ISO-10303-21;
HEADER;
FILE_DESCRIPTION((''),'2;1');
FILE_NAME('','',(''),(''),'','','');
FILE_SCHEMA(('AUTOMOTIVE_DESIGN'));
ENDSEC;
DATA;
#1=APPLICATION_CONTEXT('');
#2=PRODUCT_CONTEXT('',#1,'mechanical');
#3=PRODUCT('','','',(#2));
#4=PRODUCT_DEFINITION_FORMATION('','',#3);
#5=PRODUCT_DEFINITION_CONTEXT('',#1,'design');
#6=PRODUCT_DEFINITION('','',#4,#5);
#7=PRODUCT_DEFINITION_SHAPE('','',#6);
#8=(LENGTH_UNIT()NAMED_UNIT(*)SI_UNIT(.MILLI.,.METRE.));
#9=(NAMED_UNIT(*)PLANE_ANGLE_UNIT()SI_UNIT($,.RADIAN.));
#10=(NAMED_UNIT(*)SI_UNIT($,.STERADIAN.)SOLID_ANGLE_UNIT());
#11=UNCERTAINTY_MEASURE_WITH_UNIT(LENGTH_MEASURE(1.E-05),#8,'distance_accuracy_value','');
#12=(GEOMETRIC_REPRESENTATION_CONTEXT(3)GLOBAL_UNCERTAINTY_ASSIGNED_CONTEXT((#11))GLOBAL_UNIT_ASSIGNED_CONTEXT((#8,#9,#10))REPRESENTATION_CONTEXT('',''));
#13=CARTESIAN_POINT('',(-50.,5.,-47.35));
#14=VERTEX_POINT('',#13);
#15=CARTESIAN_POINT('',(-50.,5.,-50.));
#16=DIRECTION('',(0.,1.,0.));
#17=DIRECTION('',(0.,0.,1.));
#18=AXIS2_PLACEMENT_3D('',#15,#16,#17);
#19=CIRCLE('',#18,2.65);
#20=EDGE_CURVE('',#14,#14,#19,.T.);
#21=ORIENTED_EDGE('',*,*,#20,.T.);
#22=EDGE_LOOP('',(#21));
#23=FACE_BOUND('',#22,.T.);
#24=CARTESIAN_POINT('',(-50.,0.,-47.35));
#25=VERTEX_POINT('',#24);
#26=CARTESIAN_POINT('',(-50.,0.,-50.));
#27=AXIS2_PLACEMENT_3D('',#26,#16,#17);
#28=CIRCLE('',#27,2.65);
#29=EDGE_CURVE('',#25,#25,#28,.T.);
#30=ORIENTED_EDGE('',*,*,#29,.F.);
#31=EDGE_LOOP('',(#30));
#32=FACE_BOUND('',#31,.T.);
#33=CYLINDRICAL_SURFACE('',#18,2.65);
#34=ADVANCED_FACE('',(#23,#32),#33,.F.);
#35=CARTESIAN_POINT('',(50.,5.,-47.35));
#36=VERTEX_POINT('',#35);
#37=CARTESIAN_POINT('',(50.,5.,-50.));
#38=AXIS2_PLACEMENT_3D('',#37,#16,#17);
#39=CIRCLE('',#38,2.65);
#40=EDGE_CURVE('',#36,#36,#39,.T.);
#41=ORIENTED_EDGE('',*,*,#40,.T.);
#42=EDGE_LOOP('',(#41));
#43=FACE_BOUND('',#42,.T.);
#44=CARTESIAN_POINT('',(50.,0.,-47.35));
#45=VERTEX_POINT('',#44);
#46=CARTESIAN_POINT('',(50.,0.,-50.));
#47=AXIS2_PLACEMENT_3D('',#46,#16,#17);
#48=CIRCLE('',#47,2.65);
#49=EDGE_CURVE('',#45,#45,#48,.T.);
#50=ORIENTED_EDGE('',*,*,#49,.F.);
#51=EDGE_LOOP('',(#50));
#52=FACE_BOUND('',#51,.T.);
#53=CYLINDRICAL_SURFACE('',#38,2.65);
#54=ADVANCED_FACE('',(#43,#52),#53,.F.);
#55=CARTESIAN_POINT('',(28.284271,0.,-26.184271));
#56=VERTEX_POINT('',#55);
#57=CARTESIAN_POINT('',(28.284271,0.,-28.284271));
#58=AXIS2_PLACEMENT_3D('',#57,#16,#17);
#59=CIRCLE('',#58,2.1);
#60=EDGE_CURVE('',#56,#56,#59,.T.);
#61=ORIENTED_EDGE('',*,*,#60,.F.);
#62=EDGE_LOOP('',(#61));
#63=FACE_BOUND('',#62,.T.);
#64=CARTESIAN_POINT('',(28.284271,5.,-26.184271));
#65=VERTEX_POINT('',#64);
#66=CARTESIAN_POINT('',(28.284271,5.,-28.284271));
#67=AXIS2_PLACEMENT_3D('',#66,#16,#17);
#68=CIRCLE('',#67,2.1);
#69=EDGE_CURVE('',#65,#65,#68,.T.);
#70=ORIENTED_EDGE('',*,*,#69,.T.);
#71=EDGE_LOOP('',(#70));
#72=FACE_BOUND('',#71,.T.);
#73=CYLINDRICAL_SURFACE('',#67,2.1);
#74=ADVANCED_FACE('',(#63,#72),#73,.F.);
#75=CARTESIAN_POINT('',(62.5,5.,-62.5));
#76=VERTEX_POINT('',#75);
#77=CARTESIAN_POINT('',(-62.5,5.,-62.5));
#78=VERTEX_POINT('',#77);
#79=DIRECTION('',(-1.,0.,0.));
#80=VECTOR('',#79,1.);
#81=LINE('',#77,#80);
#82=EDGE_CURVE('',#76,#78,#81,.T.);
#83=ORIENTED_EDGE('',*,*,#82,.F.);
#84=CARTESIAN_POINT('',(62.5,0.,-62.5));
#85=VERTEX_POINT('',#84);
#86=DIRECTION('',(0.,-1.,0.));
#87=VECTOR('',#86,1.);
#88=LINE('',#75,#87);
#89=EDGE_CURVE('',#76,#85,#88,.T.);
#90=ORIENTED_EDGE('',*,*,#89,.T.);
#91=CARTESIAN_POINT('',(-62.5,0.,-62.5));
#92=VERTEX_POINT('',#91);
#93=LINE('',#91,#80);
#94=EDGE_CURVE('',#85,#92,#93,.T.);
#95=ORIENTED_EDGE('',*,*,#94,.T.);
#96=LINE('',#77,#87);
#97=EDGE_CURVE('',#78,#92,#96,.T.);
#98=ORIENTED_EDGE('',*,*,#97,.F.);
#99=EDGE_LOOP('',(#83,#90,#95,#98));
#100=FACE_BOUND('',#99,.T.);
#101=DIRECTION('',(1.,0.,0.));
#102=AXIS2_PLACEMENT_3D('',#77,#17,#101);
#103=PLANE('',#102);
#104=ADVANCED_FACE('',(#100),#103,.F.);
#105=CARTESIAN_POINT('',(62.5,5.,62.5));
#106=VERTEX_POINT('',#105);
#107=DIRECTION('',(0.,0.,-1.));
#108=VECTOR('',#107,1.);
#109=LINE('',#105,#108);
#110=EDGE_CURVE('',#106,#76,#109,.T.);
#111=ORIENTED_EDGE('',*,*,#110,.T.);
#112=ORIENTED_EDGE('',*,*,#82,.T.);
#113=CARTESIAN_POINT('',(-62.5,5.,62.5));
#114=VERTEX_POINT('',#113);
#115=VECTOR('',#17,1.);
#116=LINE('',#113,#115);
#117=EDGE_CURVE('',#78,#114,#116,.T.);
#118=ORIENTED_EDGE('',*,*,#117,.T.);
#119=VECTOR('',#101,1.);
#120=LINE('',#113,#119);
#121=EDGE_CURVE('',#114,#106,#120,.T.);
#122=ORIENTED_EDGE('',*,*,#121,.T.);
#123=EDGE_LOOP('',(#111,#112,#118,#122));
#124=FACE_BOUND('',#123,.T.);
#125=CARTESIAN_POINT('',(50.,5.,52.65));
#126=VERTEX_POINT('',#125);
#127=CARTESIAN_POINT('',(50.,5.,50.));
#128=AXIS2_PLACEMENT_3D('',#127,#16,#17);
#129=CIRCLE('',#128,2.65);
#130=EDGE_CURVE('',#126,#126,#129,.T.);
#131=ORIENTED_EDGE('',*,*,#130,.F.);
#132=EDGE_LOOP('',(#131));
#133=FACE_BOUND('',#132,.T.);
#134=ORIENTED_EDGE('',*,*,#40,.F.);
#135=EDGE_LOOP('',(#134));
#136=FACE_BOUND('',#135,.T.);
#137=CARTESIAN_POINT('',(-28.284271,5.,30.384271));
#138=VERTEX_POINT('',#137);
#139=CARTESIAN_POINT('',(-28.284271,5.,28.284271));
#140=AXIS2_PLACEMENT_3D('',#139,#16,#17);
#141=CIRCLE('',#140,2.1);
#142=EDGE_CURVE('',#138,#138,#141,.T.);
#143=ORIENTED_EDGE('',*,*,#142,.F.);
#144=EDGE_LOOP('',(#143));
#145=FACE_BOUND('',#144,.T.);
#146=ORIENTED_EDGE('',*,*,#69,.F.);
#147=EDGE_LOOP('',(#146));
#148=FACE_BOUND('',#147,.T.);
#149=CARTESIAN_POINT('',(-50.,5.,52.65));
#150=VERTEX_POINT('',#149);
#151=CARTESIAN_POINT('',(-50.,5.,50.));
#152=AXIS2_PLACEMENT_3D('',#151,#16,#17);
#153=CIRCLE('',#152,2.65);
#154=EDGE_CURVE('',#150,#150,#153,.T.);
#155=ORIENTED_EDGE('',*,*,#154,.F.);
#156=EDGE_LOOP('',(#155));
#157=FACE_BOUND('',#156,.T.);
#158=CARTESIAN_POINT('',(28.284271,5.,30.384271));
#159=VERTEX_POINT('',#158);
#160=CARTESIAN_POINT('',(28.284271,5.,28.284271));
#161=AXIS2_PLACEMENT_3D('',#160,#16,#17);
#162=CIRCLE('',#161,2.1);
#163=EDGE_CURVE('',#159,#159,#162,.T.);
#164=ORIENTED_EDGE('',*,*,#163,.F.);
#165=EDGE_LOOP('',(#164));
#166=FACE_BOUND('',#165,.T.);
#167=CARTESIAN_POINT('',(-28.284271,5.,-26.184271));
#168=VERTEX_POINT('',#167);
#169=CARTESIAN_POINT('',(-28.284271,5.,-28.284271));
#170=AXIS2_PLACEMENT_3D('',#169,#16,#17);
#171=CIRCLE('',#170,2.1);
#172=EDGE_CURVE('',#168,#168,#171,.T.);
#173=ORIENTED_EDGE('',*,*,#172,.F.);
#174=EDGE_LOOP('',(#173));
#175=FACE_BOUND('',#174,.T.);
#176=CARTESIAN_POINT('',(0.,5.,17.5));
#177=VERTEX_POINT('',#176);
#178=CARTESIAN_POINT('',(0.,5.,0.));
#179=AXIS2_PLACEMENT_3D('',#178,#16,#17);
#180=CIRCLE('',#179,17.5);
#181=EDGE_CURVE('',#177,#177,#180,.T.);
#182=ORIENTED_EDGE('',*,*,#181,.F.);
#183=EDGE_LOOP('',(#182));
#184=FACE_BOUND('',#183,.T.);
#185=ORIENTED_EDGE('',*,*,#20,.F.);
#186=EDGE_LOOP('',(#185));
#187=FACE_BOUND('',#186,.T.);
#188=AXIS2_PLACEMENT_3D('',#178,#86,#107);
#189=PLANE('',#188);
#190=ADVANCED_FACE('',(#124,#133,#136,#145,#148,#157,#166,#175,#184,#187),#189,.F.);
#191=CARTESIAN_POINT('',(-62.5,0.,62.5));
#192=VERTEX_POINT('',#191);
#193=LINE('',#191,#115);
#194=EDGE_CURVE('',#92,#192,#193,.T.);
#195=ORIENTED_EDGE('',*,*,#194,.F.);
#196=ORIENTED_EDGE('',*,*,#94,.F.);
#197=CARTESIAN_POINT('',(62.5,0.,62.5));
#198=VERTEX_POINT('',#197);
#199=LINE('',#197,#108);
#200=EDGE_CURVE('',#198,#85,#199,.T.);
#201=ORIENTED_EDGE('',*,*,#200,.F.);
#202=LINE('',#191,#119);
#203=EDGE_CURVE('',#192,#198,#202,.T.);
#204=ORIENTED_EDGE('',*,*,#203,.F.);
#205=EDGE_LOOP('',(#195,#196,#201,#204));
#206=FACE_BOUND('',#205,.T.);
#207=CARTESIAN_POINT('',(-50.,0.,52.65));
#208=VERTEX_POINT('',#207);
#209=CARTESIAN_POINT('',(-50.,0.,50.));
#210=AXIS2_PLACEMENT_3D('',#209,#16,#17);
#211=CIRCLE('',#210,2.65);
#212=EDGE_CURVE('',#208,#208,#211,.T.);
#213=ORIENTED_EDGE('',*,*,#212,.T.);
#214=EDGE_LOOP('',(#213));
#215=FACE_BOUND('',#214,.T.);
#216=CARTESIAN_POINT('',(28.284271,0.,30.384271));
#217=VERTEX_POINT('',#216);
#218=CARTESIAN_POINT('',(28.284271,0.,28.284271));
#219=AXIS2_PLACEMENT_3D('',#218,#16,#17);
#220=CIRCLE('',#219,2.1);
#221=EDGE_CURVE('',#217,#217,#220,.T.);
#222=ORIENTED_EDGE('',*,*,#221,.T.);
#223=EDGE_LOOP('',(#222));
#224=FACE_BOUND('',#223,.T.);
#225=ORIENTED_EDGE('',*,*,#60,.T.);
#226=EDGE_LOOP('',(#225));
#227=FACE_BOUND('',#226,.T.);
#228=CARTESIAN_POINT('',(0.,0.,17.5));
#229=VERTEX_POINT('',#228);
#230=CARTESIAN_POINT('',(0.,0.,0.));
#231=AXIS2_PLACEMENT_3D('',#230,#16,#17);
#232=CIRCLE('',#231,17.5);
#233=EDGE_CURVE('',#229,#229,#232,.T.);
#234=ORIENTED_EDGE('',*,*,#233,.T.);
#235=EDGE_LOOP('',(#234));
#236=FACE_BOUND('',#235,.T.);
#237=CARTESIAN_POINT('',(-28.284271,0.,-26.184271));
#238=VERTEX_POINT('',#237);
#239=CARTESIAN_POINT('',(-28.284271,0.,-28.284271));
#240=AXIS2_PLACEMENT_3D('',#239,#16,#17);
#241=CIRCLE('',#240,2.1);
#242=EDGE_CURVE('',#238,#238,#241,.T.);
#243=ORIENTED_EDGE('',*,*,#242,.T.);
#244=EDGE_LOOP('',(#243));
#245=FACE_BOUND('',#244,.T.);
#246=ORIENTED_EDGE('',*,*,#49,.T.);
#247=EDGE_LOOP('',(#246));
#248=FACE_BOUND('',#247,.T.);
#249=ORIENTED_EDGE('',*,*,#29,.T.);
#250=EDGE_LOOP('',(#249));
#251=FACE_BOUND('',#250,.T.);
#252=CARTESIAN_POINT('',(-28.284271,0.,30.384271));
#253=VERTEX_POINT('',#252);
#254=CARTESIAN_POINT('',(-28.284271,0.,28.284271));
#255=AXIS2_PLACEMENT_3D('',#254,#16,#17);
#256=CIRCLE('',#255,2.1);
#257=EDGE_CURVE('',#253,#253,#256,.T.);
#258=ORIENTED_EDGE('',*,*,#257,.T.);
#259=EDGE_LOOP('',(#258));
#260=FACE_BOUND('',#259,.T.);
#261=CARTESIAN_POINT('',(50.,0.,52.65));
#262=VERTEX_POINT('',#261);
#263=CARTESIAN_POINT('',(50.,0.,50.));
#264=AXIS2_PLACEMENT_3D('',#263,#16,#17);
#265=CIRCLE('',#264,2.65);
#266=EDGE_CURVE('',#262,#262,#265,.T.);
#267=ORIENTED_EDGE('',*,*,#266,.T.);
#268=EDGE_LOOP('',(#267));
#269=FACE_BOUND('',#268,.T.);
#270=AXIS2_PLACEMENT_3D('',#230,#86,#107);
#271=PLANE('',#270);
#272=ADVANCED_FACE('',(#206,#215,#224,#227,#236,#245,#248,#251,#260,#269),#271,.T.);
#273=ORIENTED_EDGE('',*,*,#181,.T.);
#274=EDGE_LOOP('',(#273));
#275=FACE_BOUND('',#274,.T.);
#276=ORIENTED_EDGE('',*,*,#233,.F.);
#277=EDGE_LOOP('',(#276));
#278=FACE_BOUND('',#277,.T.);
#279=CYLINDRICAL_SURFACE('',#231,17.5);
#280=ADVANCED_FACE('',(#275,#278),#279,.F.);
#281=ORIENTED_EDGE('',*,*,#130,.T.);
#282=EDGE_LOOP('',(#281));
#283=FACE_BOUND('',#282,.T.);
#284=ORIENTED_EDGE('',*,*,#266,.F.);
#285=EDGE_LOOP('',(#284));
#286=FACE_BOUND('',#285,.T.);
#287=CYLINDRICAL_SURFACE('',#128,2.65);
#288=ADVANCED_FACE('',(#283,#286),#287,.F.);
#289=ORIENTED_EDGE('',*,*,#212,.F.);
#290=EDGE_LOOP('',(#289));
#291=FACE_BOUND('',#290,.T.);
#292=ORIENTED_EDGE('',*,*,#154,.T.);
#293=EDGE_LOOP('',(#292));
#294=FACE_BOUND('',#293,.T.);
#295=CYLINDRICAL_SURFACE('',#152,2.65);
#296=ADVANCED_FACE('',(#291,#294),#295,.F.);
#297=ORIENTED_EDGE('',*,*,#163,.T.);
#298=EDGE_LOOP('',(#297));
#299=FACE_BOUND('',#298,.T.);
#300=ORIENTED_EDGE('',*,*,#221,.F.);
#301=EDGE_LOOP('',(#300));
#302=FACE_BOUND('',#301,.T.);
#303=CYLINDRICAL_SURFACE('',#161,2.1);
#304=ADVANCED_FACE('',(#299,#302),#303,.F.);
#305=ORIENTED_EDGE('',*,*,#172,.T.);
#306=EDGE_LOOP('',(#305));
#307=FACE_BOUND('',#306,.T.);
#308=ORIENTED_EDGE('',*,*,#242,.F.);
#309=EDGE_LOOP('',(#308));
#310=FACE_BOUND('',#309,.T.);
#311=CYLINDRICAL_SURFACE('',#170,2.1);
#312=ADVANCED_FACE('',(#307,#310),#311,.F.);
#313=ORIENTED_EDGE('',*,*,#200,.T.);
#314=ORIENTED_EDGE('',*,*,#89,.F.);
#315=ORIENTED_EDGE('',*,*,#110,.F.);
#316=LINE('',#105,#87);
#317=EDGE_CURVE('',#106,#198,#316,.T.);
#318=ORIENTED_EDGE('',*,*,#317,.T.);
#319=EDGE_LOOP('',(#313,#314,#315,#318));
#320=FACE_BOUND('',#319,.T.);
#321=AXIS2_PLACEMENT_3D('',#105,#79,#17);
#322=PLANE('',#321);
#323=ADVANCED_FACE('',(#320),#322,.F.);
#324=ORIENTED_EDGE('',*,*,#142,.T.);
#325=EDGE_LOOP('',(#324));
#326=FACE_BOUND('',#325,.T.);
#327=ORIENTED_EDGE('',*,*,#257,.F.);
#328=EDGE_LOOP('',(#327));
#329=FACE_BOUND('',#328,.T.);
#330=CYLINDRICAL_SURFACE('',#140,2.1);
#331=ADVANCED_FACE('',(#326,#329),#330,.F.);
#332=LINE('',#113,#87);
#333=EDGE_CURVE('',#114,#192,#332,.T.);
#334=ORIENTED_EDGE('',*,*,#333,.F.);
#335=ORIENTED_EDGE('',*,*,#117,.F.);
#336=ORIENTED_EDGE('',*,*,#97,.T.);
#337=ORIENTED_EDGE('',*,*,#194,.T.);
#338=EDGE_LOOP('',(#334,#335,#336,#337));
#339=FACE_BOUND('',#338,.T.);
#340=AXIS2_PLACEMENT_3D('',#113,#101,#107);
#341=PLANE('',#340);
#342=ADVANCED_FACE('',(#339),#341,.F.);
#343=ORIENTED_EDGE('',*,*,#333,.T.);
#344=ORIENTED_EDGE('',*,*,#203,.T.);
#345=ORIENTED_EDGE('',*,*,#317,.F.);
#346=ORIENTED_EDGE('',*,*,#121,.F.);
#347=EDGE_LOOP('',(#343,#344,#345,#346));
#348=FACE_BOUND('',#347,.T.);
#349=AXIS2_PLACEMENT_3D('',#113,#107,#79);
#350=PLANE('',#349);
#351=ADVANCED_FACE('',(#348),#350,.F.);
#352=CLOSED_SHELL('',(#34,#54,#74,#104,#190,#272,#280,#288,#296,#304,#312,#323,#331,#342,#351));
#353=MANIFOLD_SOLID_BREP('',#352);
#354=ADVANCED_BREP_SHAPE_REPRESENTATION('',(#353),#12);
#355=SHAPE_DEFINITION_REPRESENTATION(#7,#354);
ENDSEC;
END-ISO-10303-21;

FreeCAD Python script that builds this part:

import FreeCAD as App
import Part
import Sketcher
from FreeCAD import Vector


def add_polygon(sketch, points):
    """Adds a closed chain of lines whose ends are joined by coincident constraints."""
    first, n = sketch.GeometryCount, len(points)
    for a, b in zip(points, points[1:] + points[:1]):
        sketch.addGeometry(Part.LineSegment(App.Vector(*a, 0), App.Vector(*b, 0)), False)
    for i in range(n):
        sketch.addConstraint(Sketcher.Constraint("Coincident", first + i, 2, first + (i + 1) % n, 1))

doc = App.newDocument("Part")
body = doc.addObject("PartDesign::Body", "Body")

# Sketch on XZ plane
sketch1 = body.newObject("Sketcher::SketchObject", "Sketch")
sketch1.AttachmentSupport = (doc.getObject("XZ_Plane"), [""])
sketch1.MapMode = "FlatFace"
add_polygon(sketch1, [(-62, -62), (-62, 62), (62, 62), (62, -62)])  # lines 0-3
sketch1.addConstraint(Sketcher.Constraint("Vertical", 0))
sketch1.addConstraint(Sketcher.Constraint("Horizontal", 1))
sketch1.addConstraint(Sketcher.Constraint("Vertical", 2))
sketch1.addConstraint(Sketcher.Constraint("Horizontal", 3))
sketch1.addConstraint(Sketcher.Constraint("Symmetric", 0, 2, 2, 2, -1, 1))
sketch1.addConstraint(Sketcher.Constraint("Equal", 3, 0))
sketch1.addConstraint(Sketcher.Constraint("DistanceX", 1, 1, 1, 2, 125.0))
pad1 = body.newObject("PartDesign::Pad", "Pad")
pad1.Profile = sketch1
pad1.Length = 5
pad1.Reversed = True

# Sketch on XZ plane
sketch2 = body.newObject("Sketcher::SketchObject", "Sketch001")
sketch2.AttachmentSupport = (doc.getObject("XZ_Plane"), [""])
sketch2.MapMode = "FlatFace"
sketch2.AttachmentOffset = App.Placement(Vector(0, 0, -5), App.Rotation())
sketch2.addGeometry(Part.Circle(Vector(0, 0, 0), Vector(0, 0, 1), 18), False)
sketch2.addConstraint(Sketcher.Constraint("Coincident", 0, 3, -1, 1))
sketch2.addConstraint(Sketcher.Constraint("Diameter", 0, 35.0))
pocket1 = body.newObject("PartDesign::Pocket", "Pocket")
pocket1.Profile = sketch2
pocket1.Type = "ThroughAll"
pocket1.Reversed = True

# Sketch on XZ plane
sketch3 = body.newObject("Sketcher::SketchObject", "Sketch002")
sketch3.AttachmentSupport = (doc.getObject("XZ_Plane"), [""])
sketch3.MapMode = "FlatFace"
sketch3.AttachmentOffset = App.Placement(Vector(0, 0, -5), App.Rotation())
sketch3.addGeometry(Part.Circle(Vector(28.3, -28.3, 0), Vector(0, 0, 1), 2.1), False)
sketch3.addGeometry(Part.Circle(Vector(28.3, 28.3, 0), Vector(0, 0, 1), 2.1), False)
sketch3.addGeometry(Part.Circle(Vector(-28.3, 28.3, 0), Vector(0, 0, 1), 2.1), False)
sketch3.addGeometry(Part.Circle(Vector(-28.3, -28.3, 0), Vector(0, 0, 1), 2.1), False)
sketch3.addConstraint(Sketcher.Constraint("Equal", 0, 1))
sketch3.addConstraint(Sketcher.Constraint("Equal", 1, 2))
sketch3.addConstraint(Sketcher.Constraint("Equal", 2, 3))
sketch3.addConstraint(Sketcher.Constraint("Symmetric", 0, 3, 2, 3, -1, 1))
sketch3.addConstraint(Sketcher.Constraint("Symmetric", 1, 3, 3, 3, -1, 1))
sketch3.addConstraint(Sketcher.Constraint("Symmetric", 1, 3, 2, 3, -2))
sketch3.addConstraint(Sketcher.Constraint("Diameter", 0, 4.2))
sketch3.addConstraint(Sketcher.Constraint("DistanceX", -1, 1, 0, 3, 28.284271))
sketch3.addConstraint(Sketcher.Constraint("DistanceY", 0, 3, -1, 1, 28.284271))
doc.recompute()
hole = body.newObject("PartDesign::Hole", "Hole")
hole.Profile = sketch3
hole.ThreadType = "None"
hole.Diameter = 4.2
hole.DepthType = "ThroughAll"
hole.Reversed = True

# Sketch on XZ plane
sketch4 = body.newObject("Sketcher::SketchObject", "Sketch003")
sketch4.AttachmentSupport = (doc.getObject("XZ_Plane"), [""])
sketch4.MapMode = "FlatFace"
sketch4.AttachmentOffset = App.Placement(Vector(0, 0, -5), App.Rotation())
sketch4.addGeometry(Part.Circle(Vector(-50, 50, 0), Vector(0, 0, 1), 2.6), False)
sketch4.addGeometry(Part.Circle(Vector(-50, -50, 0), Vector(0, 0, 1), 2.6), False)
sketch4.addGeometry(Part.Circle(Vector(50, -50, 0), Vector(0, 0, 1), 2.6), False)
sketch4.addGeometry(Part.Circle(Vector(50, 50, 0), Vector(0, 0, 1), 2.6), False)
sketch4.addConstraint(Sketcher.Constraint("Equal", 0, 1))
sketch4.addConstraint(Sketcher.Constraint("Equal", 1, 2))
sketch4.addConstraint(Sketcher.Constraint("Equal", 2, 3))
sketch4.addConstraint(Sketcher.Constraint("Symmetric", 0, 3, 2, 3, -1, 1))
sketch4.addConstraint(Sketcher.Constraint("Symmetric", 1, 3, 3, 3, -1, 1))
sketch4.addConstraint(Sketcher.Constraint("Symmetric", 1, 3, 2, 3, -2))
sketch4.addConstraint(Sketcher.Constraint("Diameter", 0, 5.3))
sketch4.addConstraint(Sketcher.Constraint("DistanceX", 0, 3, -1, 1, 50.0))
sketch4.addConstraint(Sketcher.Constraint("DistanceY", -1, 1, 0, 3, 50.0))
doc.recompute()
hole2 = body.newObject("PartDesign::Hole", "Hole001")
hole2.Profile = sketch4
hole2.ThreadType = "None"
hole2.Diameter = 5.3
hole2.DepthType = "ThroughAll"
hole2.Reversed = True

doc.recompute()
